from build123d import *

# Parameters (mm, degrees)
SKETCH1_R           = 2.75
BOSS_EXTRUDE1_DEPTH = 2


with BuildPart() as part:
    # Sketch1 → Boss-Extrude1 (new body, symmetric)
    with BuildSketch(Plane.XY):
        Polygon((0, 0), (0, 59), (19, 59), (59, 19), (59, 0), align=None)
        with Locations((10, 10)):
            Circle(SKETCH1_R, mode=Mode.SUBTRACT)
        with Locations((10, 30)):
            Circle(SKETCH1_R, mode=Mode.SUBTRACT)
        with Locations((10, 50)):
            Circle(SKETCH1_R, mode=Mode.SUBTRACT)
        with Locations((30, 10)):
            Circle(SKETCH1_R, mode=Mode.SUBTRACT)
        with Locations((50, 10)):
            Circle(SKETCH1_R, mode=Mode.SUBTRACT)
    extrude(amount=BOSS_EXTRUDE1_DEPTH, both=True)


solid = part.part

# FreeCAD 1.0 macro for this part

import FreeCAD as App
import Part
import Sketcher


def add_polygon(sketch, points):
    """Adds a closed chain of lines whose ends are joined by coincident constraints."""
    first, n = sketch.GeometryCount, len(points)
    for a, b in zip(points, points[1:] + points[:1]):
        sketch.addGeometry(Part.LineSegment(App.Vector(*a, 0), App.Vector(*b, 0)), False)
    for i in range(n):
        sketch.addConstraint(Sketcher.Constraint("Coincident", first + i, 2, first + (i + 1) % n, 1))

doc = App.newDocument("Part")
body = doc.addObject("PartDesign::Body", "Body")

# Sketch on XY plane
sketch1 = doc.addObject("Sketcher::SketchObject", "Sketch")
body.addObject(sketch1)
sketch1.AttachmentSupport = (doc.XY_Plane, [""])
sketch1.MapMode = "FlatFace"
add_polygon(sketch1, [(0, 59), (0, 0), (59, 0), (59, 19), (19, 59)])  # lines 0-4
sketch1.addGeometry(Part.Circle(App.Vector(50, 10, 0), App.Vector(0, 0, 1), 2.75), False)  # 5
sketch1.addGeometry(Part.Circle(App.Vector(30, 10, 0), App.Vector(0, 0, 1), 2.75), False)  # 6
sketch1.addGeometry(Part.Circle(App.Vector(10, 10, 0), App.Vector(0, 0, 1), 2.75), False)  # 7
sketch1.addGeometry(Part.Circle(App.Vector(10, 30, 0), App.Vector(0, 0, 1), 2.75), False)  # 8
sketch1.addGeometry(Part.Circle(App.Vector(10, 50, 0), App.Vector(0, 0, 1), 2.75), False)  # 9
sketch1.addConstraint(Sketcher.Constraint("Vertical", 0))
sketch1.addConstraint(Sketcher.Constraint("Horizontal", 1))
sketch1.addConstraint(Sketcher.Constraint("Vertical", 2))
sketch1.addConstraint(Sketcher.Constraint("Horizontal", 4))
sketch1.addConstraint(Sketcher.Constraint("Coincident", 0, 2, -1, 1))
sketch1.addConstraint(Sketcher.Constraint("Equal", 5, 6))
sketch1.addConstraint(Sketcher.Constraint("Equal", 6, 7))
sketch1.addConstraint(Sketcher.Constraint("Equal", 7, 8))
sketch1.addConstraint(Sketcher.Constraint("Equal", 8, 9))
sketch1.addConstraint(Sketcher.Constraint("Horizontal", 5, 3, 6, 3))
sketch1.addConstraint(Sketcher.Constraint("Horizontal", 6, 3, 7, 3))
sketch1.addConstraint(Sketcher.Constraint("Vertical", 7, 3, 8, 3))
sketch1.addConstraint(Sketcher.Constraint("Vertical", 8, 3, 9, 3))
sketch1.addConstraint(Sketcher.Constraint("Equal", 1, 0))
sketch1.addConstraint(Sketcher.Constraint("Equal", 4, 2))
sketch1.addConstraint(Sketcher.Constraint("Diameter", 5, 5.5))
sketch1.addConstraint(Sketcher.Constraint("DistanceX", 1, 1, 1, 2, 59.0))
sketch1.addConstraint(Sketcher.Constraint("DistanceX", 4, 2, 4, 1, 19.0))
sketch1.addConstraint(Sketcher.Constraint("DistanceX", -1, 1, 5, 3, 50.0))
sketch1.addConstraint(Sketcher.Constraint("DistanceY", -1, 1, 5, 3, 10.0))
sketch1.addConstraint(Sketcher.Constraint("DistanceX", -1, 1, 6, 3, 30.0))
sketch1.addConstraint(Sketcher.Constraint("DistanceX", -1, 1, 7, 3, 10.0))
sketch1.addConstraint(Sketcher.Constraint("DistanceY", -1, 1, 8, 3, 30.0))
sketch1.addConstraint(Sketcher.Constraint("DistanceY", -1, 1, 9, 3, 50.0))
pad1 = doc.addObject("PartDesign::Pad", "Pad")
body.addObject(pad1)
pad1.Profile = sketch1
pad1.Length = 4
pad1.Midplane = True

doc.recompute()
